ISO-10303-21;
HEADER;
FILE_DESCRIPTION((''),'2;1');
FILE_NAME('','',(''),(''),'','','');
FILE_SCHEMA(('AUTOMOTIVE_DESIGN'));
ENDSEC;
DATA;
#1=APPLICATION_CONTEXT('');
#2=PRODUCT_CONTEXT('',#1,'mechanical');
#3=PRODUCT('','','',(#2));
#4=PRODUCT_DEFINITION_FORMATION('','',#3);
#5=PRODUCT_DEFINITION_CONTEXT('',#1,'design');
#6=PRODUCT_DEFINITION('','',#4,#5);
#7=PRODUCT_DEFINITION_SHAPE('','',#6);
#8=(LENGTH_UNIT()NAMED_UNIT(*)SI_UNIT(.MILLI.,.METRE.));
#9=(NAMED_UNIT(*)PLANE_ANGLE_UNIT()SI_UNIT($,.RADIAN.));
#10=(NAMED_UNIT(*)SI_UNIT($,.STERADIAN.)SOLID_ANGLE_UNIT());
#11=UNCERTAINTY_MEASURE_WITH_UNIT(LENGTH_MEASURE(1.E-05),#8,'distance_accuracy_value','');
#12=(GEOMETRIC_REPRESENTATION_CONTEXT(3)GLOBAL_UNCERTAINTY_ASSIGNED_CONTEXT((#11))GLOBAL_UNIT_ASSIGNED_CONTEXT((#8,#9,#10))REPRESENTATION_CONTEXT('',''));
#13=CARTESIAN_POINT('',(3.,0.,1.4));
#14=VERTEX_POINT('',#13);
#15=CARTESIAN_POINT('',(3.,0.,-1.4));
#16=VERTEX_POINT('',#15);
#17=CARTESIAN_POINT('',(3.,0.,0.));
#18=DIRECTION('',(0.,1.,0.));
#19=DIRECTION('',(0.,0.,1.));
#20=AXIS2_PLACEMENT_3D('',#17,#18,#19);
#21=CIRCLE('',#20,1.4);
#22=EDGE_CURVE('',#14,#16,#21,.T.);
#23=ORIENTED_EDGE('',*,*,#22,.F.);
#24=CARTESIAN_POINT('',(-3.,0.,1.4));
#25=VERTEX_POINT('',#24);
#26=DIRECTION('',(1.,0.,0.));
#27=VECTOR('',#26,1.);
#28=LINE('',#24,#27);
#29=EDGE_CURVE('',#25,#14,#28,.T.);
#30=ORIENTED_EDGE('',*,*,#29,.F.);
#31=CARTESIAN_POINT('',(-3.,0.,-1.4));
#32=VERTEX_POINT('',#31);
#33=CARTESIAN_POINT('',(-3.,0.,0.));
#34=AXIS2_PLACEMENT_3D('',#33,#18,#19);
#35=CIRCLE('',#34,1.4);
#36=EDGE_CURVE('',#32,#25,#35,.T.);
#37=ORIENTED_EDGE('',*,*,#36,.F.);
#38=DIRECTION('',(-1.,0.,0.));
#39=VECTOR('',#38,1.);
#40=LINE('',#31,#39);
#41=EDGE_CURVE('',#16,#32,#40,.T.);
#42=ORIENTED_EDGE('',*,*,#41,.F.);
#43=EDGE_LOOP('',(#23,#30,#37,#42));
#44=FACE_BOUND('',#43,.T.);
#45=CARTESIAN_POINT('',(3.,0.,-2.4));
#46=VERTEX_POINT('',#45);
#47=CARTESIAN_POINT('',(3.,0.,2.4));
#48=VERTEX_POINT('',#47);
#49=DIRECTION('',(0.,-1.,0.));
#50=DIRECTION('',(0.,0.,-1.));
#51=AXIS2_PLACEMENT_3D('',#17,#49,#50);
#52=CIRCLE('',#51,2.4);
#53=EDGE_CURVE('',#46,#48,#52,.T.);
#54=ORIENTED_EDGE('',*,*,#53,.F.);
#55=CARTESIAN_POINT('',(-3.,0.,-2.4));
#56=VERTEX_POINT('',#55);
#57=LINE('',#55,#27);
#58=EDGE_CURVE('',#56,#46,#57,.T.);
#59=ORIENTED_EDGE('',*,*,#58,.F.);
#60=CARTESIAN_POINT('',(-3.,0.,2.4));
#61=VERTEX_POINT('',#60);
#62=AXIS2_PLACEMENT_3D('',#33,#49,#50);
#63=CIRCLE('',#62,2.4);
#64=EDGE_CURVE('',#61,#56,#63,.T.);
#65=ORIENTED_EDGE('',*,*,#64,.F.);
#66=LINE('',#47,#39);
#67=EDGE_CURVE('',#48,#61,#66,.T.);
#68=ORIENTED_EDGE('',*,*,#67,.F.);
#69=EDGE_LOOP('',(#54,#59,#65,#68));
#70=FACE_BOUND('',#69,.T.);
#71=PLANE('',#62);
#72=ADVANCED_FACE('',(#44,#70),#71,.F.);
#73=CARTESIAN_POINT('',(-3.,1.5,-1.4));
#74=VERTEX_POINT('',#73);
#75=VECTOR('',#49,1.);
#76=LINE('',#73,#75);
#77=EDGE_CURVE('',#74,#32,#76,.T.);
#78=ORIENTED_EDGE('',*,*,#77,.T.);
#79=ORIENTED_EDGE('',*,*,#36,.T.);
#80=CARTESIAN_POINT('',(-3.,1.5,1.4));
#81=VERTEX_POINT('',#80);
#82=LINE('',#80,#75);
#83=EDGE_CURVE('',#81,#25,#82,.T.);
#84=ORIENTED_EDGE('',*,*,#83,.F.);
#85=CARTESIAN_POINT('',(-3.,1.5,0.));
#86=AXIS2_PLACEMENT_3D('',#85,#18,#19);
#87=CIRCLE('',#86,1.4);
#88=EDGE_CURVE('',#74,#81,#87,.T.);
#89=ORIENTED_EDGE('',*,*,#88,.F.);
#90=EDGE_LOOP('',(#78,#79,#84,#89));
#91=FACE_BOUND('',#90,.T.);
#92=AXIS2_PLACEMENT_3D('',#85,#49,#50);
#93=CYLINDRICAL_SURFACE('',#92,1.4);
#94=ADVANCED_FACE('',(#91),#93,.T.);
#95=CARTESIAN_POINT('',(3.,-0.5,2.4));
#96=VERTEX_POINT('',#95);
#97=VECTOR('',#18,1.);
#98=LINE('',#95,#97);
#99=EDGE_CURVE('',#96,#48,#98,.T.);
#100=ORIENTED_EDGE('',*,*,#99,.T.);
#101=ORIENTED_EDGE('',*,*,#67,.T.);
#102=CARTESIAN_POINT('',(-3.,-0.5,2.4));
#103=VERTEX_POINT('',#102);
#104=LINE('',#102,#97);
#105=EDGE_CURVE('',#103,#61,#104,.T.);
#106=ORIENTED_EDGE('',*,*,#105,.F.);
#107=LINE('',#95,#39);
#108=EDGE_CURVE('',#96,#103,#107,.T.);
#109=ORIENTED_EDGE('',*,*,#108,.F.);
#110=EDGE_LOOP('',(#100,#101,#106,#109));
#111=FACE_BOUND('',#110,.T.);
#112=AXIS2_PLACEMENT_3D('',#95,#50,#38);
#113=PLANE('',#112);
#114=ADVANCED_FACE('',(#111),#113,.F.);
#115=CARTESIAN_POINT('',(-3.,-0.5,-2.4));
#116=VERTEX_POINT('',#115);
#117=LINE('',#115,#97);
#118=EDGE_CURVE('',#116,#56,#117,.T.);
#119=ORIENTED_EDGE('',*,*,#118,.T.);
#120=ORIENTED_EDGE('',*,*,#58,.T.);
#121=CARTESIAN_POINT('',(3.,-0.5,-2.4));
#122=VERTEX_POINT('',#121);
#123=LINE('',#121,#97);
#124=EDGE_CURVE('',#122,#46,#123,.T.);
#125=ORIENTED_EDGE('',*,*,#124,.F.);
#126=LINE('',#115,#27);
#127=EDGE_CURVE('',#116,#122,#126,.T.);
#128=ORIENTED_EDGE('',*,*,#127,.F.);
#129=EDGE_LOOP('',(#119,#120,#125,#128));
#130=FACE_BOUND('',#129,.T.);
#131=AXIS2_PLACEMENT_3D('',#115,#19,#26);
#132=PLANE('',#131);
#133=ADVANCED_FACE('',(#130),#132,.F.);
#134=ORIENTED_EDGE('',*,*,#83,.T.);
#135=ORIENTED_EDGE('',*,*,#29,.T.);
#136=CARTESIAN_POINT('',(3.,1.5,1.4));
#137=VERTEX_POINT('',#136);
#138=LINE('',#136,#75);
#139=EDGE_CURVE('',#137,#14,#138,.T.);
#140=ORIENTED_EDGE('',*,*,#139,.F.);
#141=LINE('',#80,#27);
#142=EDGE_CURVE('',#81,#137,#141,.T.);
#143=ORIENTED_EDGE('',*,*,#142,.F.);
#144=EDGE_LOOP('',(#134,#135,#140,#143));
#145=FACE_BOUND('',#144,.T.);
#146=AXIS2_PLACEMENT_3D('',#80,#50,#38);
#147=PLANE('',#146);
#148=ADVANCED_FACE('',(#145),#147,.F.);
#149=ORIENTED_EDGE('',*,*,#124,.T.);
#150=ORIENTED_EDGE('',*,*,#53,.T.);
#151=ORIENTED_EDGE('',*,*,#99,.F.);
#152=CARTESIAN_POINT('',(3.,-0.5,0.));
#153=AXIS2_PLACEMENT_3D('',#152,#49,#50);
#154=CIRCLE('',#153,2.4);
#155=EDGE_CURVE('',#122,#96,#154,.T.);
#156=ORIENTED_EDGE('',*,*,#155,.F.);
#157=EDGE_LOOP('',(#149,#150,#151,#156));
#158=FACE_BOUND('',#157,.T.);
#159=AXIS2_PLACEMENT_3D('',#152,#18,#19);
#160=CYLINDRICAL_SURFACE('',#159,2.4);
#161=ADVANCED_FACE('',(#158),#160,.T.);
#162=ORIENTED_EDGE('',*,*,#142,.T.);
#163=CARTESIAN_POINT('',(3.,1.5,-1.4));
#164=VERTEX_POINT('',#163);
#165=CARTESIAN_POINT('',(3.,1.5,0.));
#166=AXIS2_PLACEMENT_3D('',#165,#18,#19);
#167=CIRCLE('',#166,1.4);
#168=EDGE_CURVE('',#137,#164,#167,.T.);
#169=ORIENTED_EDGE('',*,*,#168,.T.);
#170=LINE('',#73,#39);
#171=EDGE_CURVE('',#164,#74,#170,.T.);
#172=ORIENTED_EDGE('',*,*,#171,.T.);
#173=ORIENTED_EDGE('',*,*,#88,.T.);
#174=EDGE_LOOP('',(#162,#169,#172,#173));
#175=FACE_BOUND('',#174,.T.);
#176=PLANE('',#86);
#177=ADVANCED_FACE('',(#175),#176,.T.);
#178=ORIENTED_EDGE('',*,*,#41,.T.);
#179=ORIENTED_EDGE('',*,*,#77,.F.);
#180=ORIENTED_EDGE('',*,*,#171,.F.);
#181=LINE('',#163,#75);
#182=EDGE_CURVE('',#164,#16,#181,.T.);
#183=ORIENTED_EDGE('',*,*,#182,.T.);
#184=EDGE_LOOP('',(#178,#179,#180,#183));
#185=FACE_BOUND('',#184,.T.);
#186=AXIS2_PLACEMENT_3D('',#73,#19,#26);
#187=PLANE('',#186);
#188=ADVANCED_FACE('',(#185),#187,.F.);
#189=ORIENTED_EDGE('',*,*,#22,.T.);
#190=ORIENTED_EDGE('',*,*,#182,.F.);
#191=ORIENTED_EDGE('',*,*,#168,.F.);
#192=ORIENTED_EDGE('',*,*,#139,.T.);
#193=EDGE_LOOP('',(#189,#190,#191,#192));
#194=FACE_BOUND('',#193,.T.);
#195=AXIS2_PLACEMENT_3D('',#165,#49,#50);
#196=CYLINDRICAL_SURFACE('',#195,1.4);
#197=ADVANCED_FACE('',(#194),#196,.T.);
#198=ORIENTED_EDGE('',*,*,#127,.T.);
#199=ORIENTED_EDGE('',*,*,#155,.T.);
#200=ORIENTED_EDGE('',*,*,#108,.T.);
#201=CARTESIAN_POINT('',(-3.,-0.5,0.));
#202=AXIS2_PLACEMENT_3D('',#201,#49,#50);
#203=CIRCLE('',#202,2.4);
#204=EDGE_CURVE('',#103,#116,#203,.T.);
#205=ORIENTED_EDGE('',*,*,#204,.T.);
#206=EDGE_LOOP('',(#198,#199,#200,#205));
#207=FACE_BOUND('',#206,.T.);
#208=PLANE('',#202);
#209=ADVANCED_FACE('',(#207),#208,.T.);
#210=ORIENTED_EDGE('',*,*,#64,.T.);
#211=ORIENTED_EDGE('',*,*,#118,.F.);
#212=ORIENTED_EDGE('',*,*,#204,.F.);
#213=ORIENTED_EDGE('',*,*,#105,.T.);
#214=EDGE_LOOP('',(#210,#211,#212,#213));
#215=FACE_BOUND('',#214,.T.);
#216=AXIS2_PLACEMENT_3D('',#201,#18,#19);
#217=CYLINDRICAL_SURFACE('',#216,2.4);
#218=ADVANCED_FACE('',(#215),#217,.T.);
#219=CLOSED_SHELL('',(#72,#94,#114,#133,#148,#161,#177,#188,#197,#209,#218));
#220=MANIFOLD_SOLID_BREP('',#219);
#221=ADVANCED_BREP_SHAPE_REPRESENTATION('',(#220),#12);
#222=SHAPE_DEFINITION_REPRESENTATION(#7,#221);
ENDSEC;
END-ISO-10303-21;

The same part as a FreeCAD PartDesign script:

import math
import FreeCAD as App
import Part
import Sketcher

V = App.Vector
Q = App.Units.Quantity

doc = App.newDocument("Part")
body = doc.addObject("PartDesign::Body", "Body")

sketch1 = body.newObject("Sketcher::SketchObject", "Sketch")
sketch1.AttachmentSupport = (doc.getObject("XZ_Plane"), [""])
sketch1.MapMode = "FlatFace"
sketch1.addGeometry(Part.LineSegment(V(3, -1.4, 0), V(-3, -1.4, 0)), False)
sketch1.addGeometry(Part.ArcOfCircle(Part.Circle(V(-3, 0, 0), V(0, 0, 1), 1.4), math.radians(90), math.radians(270)), False)
sketch1.addGeometry(Part.LineSegment(V(-3, 1.4, 0), V(3, 1.4, 0)), False)
sketch1.addGeometry(Part.ArcOfCircle(Part.Circle(V(3, 0, 0), V(0, 0, 1), 1.4), math.radians(-90), math.radians(90)), False)
sketch1.addConstraint(Sketcher.Constraint("Tangent", 0, 2, 1, 2))
sketch1.addConstraint(Sketcher.Constraint("Tangent", 1, 1, 2, 1))
sketch1.addConstraint(Sketcher.Constraint("Tangent", 2, 2, 3, 2))
sketch1.addConstraint(Sketcher.Constraint("Tangent", 3, 1, 0, 1))
sketch1.addConstraint(Sketcher.Constraint("Horizontal", 0))
sketch1.addConstraint(Sketcher.Constraint("Horizontal", 2))
sketch1.addConstraint(Sketcher.Constraint("Symmetric", 1, 3, 3, 3, -1, 1))
sketch1.addConstraint(Sketcher.Constraint("Radius", 1, Q("1.4 mm")))
sketch1.addConstraint(Sketcher.Constraint("DistanceX", 0, 2, 0, 1, Q("6 mm")))
pad1 = body.newObject("PartDesign::Pad", "Pad")
pad1.Profile = sketch1
pad1.Length = 1.5
pad1.Reversed = True

sketch2 = body.newObject("Sketcher::SketchObject", "Sketch001")
sketch2.AttachmentSupport = (doc.getObject("XZ_Plane"), [""])
sketch2.MapMode = "FlatFace"
sketch2.addGeometry(Part.LineSegment(V(-3, -2.4, 0), V(3, -2.4, 0)), False)
sketch2.addGeometry(Part.ArcOfCircle(Part.Circle(V(3, 0, 0), V(0, 0, 1), 2.4), math.radians(-90), math.radians(90)), False)
sketch2.addGeometry(Part.LineSegment(V(3, 2.4, 0), V(-3, 2.4, 0)), False)
sketch2.addGeometry(Part.ArcOfCircle(Part.Circle(V(-3, 0, 0), V(0, 0, 1), 2.4), math.radians(90), math.radians(270)), False)
sketch2.addConstraint(Sketcher.Constraint("Tangent", 0, 2, 1, 1))
sketch2.addConstraint(Sketcher.Constraint("Tangent", 1, 2, 2, 1))
sketch2.addConstraint(Sketcher.Constraint("Tangent", 2, 2, 3, 1))
sketch2.addConstraint(Sketcher.Constraint("Tangent", 3, 2, 0, 1))
sketch2.addConstraint(Sketcher.Constraint("Horizontal", 0))
sketch2.addConstraint(Sketcher.Constraint("Horizontal", 2))
sketch2.addConstraint(Sketcher.Constraint("Symmetric", 1, 3, 3, 3, -1, 1))
sketch2.addConstraint(Sketcher.Constraint("Radius", 1, Q("2.4 mm")))
sketch2.addConstraint(Sketcher.Constraint("DistanceX", 0, 1, 0, 2, Q("6 mm")))
pad2 = body.newObject("PartDesign::Pad", "Pad001")
pad2.Profile = sketch2
pad2.Length = 0.5

doc.recompute()
